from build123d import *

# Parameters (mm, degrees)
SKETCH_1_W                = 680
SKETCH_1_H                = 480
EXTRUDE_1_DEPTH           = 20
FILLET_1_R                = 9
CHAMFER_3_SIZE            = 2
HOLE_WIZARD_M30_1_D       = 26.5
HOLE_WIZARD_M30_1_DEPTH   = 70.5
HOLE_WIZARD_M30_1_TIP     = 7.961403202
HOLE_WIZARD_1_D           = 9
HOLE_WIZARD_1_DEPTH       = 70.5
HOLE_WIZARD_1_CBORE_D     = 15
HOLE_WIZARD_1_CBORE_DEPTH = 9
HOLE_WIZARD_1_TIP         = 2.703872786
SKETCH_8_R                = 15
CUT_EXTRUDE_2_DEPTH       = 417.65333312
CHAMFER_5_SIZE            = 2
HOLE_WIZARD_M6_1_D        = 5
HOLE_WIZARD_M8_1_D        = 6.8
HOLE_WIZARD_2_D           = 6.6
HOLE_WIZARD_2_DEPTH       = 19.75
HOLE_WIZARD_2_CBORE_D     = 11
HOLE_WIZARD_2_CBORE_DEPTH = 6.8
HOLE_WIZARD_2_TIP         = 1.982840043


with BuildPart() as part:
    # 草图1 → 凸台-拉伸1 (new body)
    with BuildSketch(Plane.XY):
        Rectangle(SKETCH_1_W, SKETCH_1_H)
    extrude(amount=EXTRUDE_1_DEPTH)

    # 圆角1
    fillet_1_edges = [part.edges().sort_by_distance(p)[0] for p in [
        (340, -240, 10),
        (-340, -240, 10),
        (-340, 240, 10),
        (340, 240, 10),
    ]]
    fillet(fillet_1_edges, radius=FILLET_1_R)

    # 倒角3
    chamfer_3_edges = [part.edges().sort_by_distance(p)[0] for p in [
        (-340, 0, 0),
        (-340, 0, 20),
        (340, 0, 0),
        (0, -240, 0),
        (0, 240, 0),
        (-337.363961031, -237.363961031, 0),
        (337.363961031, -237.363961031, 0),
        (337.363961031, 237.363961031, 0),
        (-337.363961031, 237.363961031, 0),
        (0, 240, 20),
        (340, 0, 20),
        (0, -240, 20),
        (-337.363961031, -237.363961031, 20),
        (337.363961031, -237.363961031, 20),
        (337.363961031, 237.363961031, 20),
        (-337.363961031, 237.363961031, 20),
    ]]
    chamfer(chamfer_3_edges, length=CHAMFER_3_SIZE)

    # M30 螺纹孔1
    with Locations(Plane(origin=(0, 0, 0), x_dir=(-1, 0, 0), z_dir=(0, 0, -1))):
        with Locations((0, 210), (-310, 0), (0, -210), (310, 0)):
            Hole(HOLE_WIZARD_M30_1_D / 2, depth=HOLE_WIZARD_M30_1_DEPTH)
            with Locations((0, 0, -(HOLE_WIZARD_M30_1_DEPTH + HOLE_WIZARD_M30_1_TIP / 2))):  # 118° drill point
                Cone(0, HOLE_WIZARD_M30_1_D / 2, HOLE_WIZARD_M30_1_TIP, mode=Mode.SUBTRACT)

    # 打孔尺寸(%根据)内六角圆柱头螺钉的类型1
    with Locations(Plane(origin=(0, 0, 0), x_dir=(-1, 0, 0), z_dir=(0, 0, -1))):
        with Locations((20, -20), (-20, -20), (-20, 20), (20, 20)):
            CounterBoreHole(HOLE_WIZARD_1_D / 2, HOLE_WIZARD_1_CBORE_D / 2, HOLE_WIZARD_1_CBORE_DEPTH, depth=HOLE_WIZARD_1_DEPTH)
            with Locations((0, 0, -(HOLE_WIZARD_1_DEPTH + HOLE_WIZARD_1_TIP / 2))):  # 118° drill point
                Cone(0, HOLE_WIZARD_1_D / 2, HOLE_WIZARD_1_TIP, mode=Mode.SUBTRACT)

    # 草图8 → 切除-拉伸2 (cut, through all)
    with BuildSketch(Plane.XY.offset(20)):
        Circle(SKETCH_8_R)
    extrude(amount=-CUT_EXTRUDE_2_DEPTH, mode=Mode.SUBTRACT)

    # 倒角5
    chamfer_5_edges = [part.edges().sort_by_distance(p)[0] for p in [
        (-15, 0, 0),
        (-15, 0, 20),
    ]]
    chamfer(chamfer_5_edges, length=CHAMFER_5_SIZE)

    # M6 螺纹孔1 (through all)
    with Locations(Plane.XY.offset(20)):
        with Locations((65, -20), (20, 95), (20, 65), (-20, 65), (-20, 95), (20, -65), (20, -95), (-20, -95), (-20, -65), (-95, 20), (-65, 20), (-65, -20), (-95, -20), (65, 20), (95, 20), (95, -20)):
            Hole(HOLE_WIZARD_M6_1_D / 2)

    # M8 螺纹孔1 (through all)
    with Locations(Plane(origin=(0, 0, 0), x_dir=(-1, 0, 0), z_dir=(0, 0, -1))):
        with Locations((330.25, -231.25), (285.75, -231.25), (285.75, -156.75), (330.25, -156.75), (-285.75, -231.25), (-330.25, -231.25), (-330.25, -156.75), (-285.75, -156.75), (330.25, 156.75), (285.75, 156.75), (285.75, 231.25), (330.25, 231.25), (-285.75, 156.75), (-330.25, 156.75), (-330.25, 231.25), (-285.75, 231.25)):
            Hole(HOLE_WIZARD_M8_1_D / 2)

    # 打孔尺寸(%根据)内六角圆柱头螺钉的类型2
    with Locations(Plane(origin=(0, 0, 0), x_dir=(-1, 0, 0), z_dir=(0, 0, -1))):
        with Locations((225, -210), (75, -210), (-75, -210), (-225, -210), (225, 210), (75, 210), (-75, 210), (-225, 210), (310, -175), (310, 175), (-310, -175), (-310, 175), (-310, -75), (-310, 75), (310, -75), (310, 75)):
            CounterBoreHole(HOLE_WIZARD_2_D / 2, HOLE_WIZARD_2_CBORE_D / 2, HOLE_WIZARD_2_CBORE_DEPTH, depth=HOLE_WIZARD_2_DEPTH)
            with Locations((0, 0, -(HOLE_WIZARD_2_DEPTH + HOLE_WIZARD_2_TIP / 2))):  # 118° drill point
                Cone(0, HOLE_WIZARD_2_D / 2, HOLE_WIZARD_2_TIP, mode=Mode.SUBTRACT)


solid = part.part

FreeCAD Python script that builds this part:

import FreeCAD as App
import Part
import Sketcher

V = App.Vector
Q = App.Units.Quantity


def edges_at(feature, points):
    """Names of the edges that pass closest to the given points."""
    edges = feature.Shape.Edges
    near = lambda p: min(range(len(edges)), key=lambda i: edges[i].distToShape(Part.Vertex(*p))[0])
    return sorted({f"Edge{near(p) + 1}" for p in points})

doc = App.newDocument("Part")
params = doc.addObject("Spreadsheet::Sheet", "Params")
for row, (alias, value) in enumerate([
    ("sketch1_width", "680 mm"),
    ("sketch1_height", "480 mm"),
    ("pad1_length", "20 mm"),
    ("fillet_radius", "9 mm"),
    ("chamfer_size", "2 mm"),
    ("sketch2_diameter", "26.5 mm"),
    ("hole_diameter", "26.5 mm"),
    ("hole_depth", "70.5 mm"),
    ("sketch3_diameter", "9 mm"),
    ("hole2_diameter", "9 mm"),
    ("hole2_depth", "70.5 mm"),
    ("hole2_cbore_diameter", "15 mm"),
    ("hole2_cbore_depth", "9 mm"),
    ("sketch4_diameter", "30 mm"),
    ("chamfer2_size", "2 mm"),
    ("sketch5_diameter", "5 mm"),
    ("hole3_diameter", "5 mm"),
    ("sketch6_diameter", "6.8 mm"),
    ("hole4_diameter", "6.8 mm"),
    ("sketch7_diameter", "6.6 mm"),
    ("hole5_diameter", "6.6 mm"),
    ("hole5_depth", "19.75 mm"),
    ("hole5_cbore_diameter", "11 mm"),
    ("hole5_cbore_depth", "6.8 mm"),
], start=1):
    params.set(f"A{row}", alias)
    params.set(f"B{row}", "=" + value)
    params.setAlias(f"B{row}", alias)

body = doc.addObject("PartDesign::Body", "Body")

sketch1 = body.newObject("Sketcher::SketchObject", "Sketch")
sketch1.AttachmentSupport = (doc.getObject("XY_Plane"), [""])
sketch1.MapMode = "FlatFace"
sketch1.addGeometry([
    Part.LineSegment(V(-340, 240, 0), V(-340, -240, 0)),
    Part.LineSegment(V(-340, -240, 0), V(340, -240, 0)),
    Part.LineSegment(V(340, -240, 0), V(340, 240, 0)),
    Part.LineSegment(V(340, 240, 0), V(-340, 240, 0)),
], False)
sketch1.addConstraint([
    Sketcher.Constraint("Coincident", 0, 2, 1, 1),
    Sketcher.Constraint("Coincident", 1, 2, 2, 1),
    Sketcher.Constraint("Coincident", 2, 2, 3, 1),
    Sketcher.Constraint("Coincident", 3, 2, 0, 1),
    Sketcher.Constraint("Vertical", 0),
    Sketcher.Constraint("Horizontal", 1),
    Sketcher.Constraint("Vertical", 2),
    Sketcher.Constraint("Horizontal", 3),
    Sketcher.Constraint("Symmetric", 0, 2, 2, 2, -1, 1),
    Sketcher.Constraint("DistanceX", 1, 1, 1, 2, Q("680 mm")),
    Sketcher.Constraint("DistanceY", 0, 2, 0, 1, Q("480 mm")),
])
sketch1.setExpression("Constraints[9]", "Params.sketch1_width")
sketch1.setExpression("Constraints[10]", "Params.sketch1_height")
pad1 = body.newObject("PartDesign::Pad", "Pad")
pad1.Profile = sketch1
pad1.setExpression("Length", "Params.pad1_length")
doc.recompute()

fillet = body.newObject("PartDesign::Fillet", "Fillet")
fillet.Base = (pad1, edges_at(pad1, [
    (340, -240, 10),
    (-340, -240, 10),
    (-340, 240, 10),
    (340, 240, 10),
]))
fillet.setExpression("Radius", "Params.fillet_radius")
doc.recompute()

chamfer = body.newObject("PartDesign::Chamfer", "Chamfer")
chamfer.Base = (fillet, edges_at(fillet, [
    (-340, 0, 0),
    (-340, 0, 20),
    (340, 0, 0),
    (0, -240, 0),
    (0, 240, 0),
    (-337.364, -237.364, 0),
    (337.364, -237.364, 0),
    (337.364, 237.364, 0),
    (-337.364, 237.364, 0),
    (0, 240, 20),
    (340, 0, 20),
    (0, -240, 20),
    (-337.364, -237.364, 20),
    (337.364, -237.364, 20),
    (337.364, 237.364, 20),
    (-337.364, 237.364, 20),
]))
chamfer.setExpression("Size", "Params.chamfer_size")

sketch2 = body.newObject("Sketcher::SketchObject", "Sketch001")
sketch2.AttachmentSupport = (doc.getObject("XY_Plane"), [""])
sketch2.MapMode = "FlatFace"
sketch2.addGeometry([
    Part.Circle(V(0, 210, 0), V(0, 0, 1), 13),
    Part.Circle(V(310, 0, 0), V(0, 0, 1), 13),
    Part.Circle(V(0, -210, 0), V(0, 0, 1), 13),
    Part.Circle(V(-310, 0, 0), V(0, 0, 1), 13),
], False)
sketch2.addConstraint([
    Sketcher.Constraint("Equal", 0, 1),
    Sketcher.Constraint("Equal", 1, 2),
    Sketcher.Constraint("Equal", 2, 3),
    Sketcher.Constraint("Symmetric", 0, 3, 2, 3, -1, 1),
    Sketcher.Constraint("Symmetric", 1, 3, 3, 3, -1, 1),
    Sketcher.Constraint("PointOnObject", 0, 3, -2),
    Sketcher.Constraint("PointOnObject", 1, 3, -1),
    Sketcher.Constraint("Diameter", 0, Q("26.5 mm")),
    Sketcher.Constraint("DistanceY", -1, 1, 0, 3, Q("210 mm")),
    Sketcher.Constraint("DistanceX", -1, 1, 1, 3, Q("310 mm")),
])
sketch2.setExpression("Constraints[7]", "Params.sketch2_diameter")
doc.recompute()
hole = body.newObject("PartDesign::Hole", "Hole")
hole.Profile = sketch2
hole.ThreadType = "None"
hole.setExpression("Diameter", "Params.hole_diameter")
hole.DepthType = "Dimension"
hole.setExpression("Depth", "Params.hole_depth")
hole.DrillPoint = "Angled"
hole.DrillPointAngle = 118
hole.Reversed = True

sketch3 = body.newObject("Sketcher::SketchObject", "Sketch002")
sketch3.AttachmentSupport = (doc.getObject("XY_Plane"), [""])
sketch3.MapMode = "FlatFace"
sketch3.addGeometry([
    Part.Circle(V(-20, -20, 0), V(0, 0, 1), 4.5),
    Part.Circle(V(20, -20, 0), V(0, 0, 1), 4.5),
    Part.Circle(V(20, 20, 0), V(0, 0, 1), 4.5),
    Part.Circle(V(-20, 20, 0), V(0, 0, 1), 4.5),
], False)
sketch3.addConstraint([
    Sketcher.Constraint("Equal", 0, 1),
    Sketcher.Constraint("Equal", 1, 2),
    Sketcher.Constraint("Equal", 2, 3),
    Sketcher.Constraint("Symmetric", 0, 3, 2, 3, -1, 1),
    Sketcher.Constraint("Symmetric", 1, 3, 3, 3, -1, 1),
    Sketcher.Constraint("Symmetric", 0, 3, 1, 3, -2),
    Sketcher.Constraint("Diameter", 0, Q("9 mm")),
    Sketcher.Constraint("DistanceX", 0, 3, -1, 1, Q("20 mm")),
    Sketcher.Constraint("DistanceY", 0, 3, -1, 1, Q("20 mm")),
])
sketch3.setExpression("Constraints[6]", "Params.sketch3_diameter")
doc.recompute()
hole2 = body.newObject("PartDesign::Hole", "Hole001")
hole2.Profile = sketch3
hole2.ThreadType = "None"
hole2.setExpression("Diameter", "Params.hole2_diameter")
hole2.DepthType = "Dimension"
hole2.setExpression("Depth", "Params.hole2_depth")
hole2.DrillPoint = "Angled"
hole2.DrillPointAngle = 118
hole2.HoleCutType = "Counterbore"
hole2.setExpression("HoleCutDiameter", "Params.hole2_cbore_diameter")
hole2.setExpression("HoleCutDepth", "Params.hole2_cbore_depth")
hole2.Reversed = True

sketch4 = body.newObject("Sketcher::SketchObject", "Sketch003")
sketch4.AttachmentSupport = (doc.getObject("XY_Plane"), [""])
sketch4.MapMode = "FlatFace"
sketch4.AttachmentOffset = App.Placement(V(0, 0, 20), App.Rotation())
sketch4.addGeometry(Part.Circle(V(0, 0, 0), V(0, 0, 1), 15), False)
sketch4.addConstraint([
    Sketcher.Constraint("Coincident", 0, 3, -1, 1),
    Sketcher.Constraint("Diameter", 0, Q("30 mm")),
])
sketch4.setExpression("Constraints[1]", "Params.sketch4_diameter")
pocket1 = body.newObject("PartDesign::Pocket", "Pocket")
pocket1.Profile = sketch4
pocket1.Type = "ThroughAll"
doc.recompute()

chamfer2 = body.newObject("PartDesign::Chamfer", "Chamfer001")
chamfer2.Base = (pocket1, edges_at(pocket1, [(-15, 0, 0), (-15, 0, 20)]))
chamfer2.setExpression("Size", "Params.chamfer2_size")

sketch5 = body.newObject("Sketcher::SketchObject", "Sketch004")
sketch5.AttachmentSupport = (doc.getObject("XY_Plane"), [""])
sketch5.MapMode = "FlatFace"
sketch5.AttachmentOffset = App.Placement(V(0, 0, 20), App.Rotation())
sketch5.addGeometry([
    Part.Circle(V(65, -20, 0), V(0, 0, 1), 2.5),
    Part.Circle(V(20, 95, 0), V(0, 0, 1), 2.5),
    Part.Circle(V(20, 65, 0), V(0, 0, 1), 2.5),
    Part.Circle(V(-20, 65, 0), V(0, 0, 1), 2.5),
    Part.Circle(V(-20, 95, 0), V(0, 0, 1), 2.5),
    Part.Circle(V(20, -65, 0), V(0, 0, 1), 2.5),
    Part.Circle(V(20, -95, 0), V(0, 0, 1), 2.5),
    Part.Circle(V(-20, -95, 0), V(0, 0, 1), 2.5),
    Part.Circle(V(-20, -65, 0), V(0, 0, 1), 2.5),
    Part.Circle(V(-95, 20, 0), V(0, 0, 1), 2.5),
    Part.Circle(V(-65, 20, 0), V(0, 0, 1), 2.5),
    Part.Circle(V(-65, -20, 0), V(0, 0, 1), 2.5),
    Part.Circle(V(-95, -20, 0), V(0, 0, 1), 2.5),
    Part.Circle(V(65, 20, 0), V(0, 0, 1), 2.5),
    Part.Circle(V(95, 20, 0), V(0, 0, 1), 2.5),
    Part.Circle(V(95, -20, 0), V(0, 0, 1), 2.5),
], False)
sketch5.addConstraint([
    Sketcher.Constraint("Equal", 0, 1),
    Sketcher.Constraint("Equal", 1, 2),
    Sketcher.Constraint("Equal", 2, 3),
    Sketcher.Constraint("Equal", 3, 4),
    Sketcher.Constraint("Equal", 4, 5),
    Sketcher.Constraint("Equal", 5, 6),
    Sketcher.Constraint("Equal", 6, 7),
    Sketcher.Constraint("Equal", 7, 8),
    Sketcher.Constraint("Equal", 8, 9),
    Sketcher.Constraint("Equal", 9, 10),
    Sketcher.Constraint("Equal", 10, 11),
    Sketcher.Constraint("Equal", 11, 12),
    Sketcher.Constraint("Equal", 12, 13),
    Sketcher.Constraint("Equal", 13, 14),
    Sketcher.Constraint("Equal", 14, 15),
    Sketcher.Constraint("Symmetric", 3, 3, 5, 3, -1, 1),
    Sketcher.Constraint("Symmetric", 4, 3, 6, 3, -1, 1),
    Sketcher.Constraint("Symmetric", 1, 3, 7, 3, -1, 1),
    Sketcher.Constraint("Symmetric", 2, 3, 8, 3, -1, 1),
    Sketcher.Constraint("Symmetric", 0, 3, 10, 3, -1, 1),
    Sketcher.Constraint("Symmetric", 11, 3, 13, 3, -1, 1),
    Sketcher.Constraint("Symmetric", 12, 3, 14, 3, -1, 1),
    Sketcher.Constraint("Symmetric", 9, 3, 15, 3, -1, 1),
    Sketcher.Constraint("Symmetric", 2, 3, 3, 3, -2),
    Sketcher.Constraint("Symmetric", 1, 3, 4, 3, -2),
    Sketcher.Constraint("Symmetric", 0, 3, 11, 3, -2),
    Sketcher.Constraint("Symmetric", 9, 3, 14, 3, -2),
    Sketcher.Constraint("Horizontal", 9, 3, 10, 3),
    Sketcher.Constraint("Vertical", 1, 3, 2, 3),
    Sketcher.Constraint("Diameter", 0, Q("5 mm")),
    Sketcher.Constraint("DistanceX", -1, 1, 0, 3, Q("65 mm")),
    Sketcher.Constraint("DistanceY", 0, 3, -1, 1, Q("20 mm")),
    Sketcher.Constraint("DistanceX", -1, 1, 1, 3, Q("20 mm")),
    Sketcher.Constraint("DistanceY", -1, 1, 1, 3, Q("95 mm")),
    Sketcher.Constraint("DistanceY", -1, 1, 2, 3, Q("65 mm")),
    Sketcher.Constraint("DistanceX", 9, 3, -1, 1, Q("95 mm")),
])
sketch5.setExpression("Constraints[29]", "Params.sketch5_diameter")
doc.recompute()
hole3 = body.newObject("PartDesign::Hole", "Hole002")
hole3.Profile = sketch5
hole3.ThreadType = "None"
hole3.setExpression("Diameter", "Params.hole3_diameter")
hole3.DepthType = "ThroughAll"

sketch6 = body.newObject("Sketcher::SketchObject", "Sketch005")
sketch6.AttachmentSupport = (doc.getObject("XY_Plane"), [""])
sketch6.MapMode = "FlatFace"
sketch6.addGeometry([
    Part.Circle(V(-330.2, -231.2, 0), V(0, 0, 1), 3.4),
    Part.Circle(V(-285.8, -231.2, 0), V(0, 0, 1), 3.4),
    Part.Circle(V(-285.8, -156.8, 0), V(0, 0, 1), 3.4),
    Part.Circle(V(-330.2, -156.8, 0), V(0, 0, 1), 3.4),
    Part.Circle(V(285.8, -231.2, 0), V(0, 0, 1), 3.4),
    Part.Circle(V(330.2, -231.2, 0), V(0, 0, 1), 3.4),
    Part.Circle(V(330.2, -156.8, 0), V(0, 0, 1), 3.4),
    Part.Circle(V(285.8, -156.8, 0), V(0, 0, 1), 3.4),
    Part.Circle(V(-330.2, 156.8, 0), V(0, 0, 1), 3.4),
    Part.Circle(V(-285.8, 156.8, 0), V(0, 0, 1), 3.4),
    Part.Circle(V(-285.8, 231.2, 0), V(0, 0, 1), 3.4),
    Part.Circle(V(-330.2, 231.2, 0), V(0, 0, 1), 3.4),
    Part.Circle(V(285.8, 156.8, 0), V(0, 0, 1), 3.4),
    Part.Circle(V(330.2, 156.8, 0), V(0, 0, 1), 3.4),
    Part.Circle(V(330.2, 231.2, 0), V(0, 0, 1), 3.4),
    Part.Circle(V(285.8, 231.2, 0), V(0, 0, 1), 3.4),
], False)
sketch6.addConstraint([
    Sketcher.Constraint("Equal", 0, 1),
    Sketcher.Constraint("Equal", 1, 2),
    Sketcher.Constraint("Equal", 2, 3),
    Sketcher.Constraint("Equal", 3, 4),
    Sketcher.Constraint("Equal", 4, 5),
    Sketcher.Constraint("Equal", 5, 6),
    Sketcher.Constraint("Equal", 6, 7),
    Sketcher.Constraint("Equal", 7, 8),
    Sketcher.Constraint("Equal", 8, 9),
    Sketcher.Constraint("Equal", 9, 10),
    Sketcher.Constraint("Equal", 10, 11),
    Sketcher.Constraint("Equal", 11, 12),
    Sketcher.Constraint("Equal", 12, 13),
    Sketcher.Constraint("Equal", 13, 14),
    Sketcher.Constraint("Equal", 14, 15),
    Sketcher.Constraint("Symmetric", 6, 3, 8, 3, -1, 1),
    Sketcher.Constraint("Symmetric", 7, 3, 9, 3, -1, 1),
    Sketcher.Constraint("Symmetric", 4, 3, 10, 3, -1, 1),
    Sketcher.Constraint("Symmetric", 5, 3, 11, 3, -1, 1),
    Sketcher.Constraint("Symmetric", 2, 3, 12, 3, -1, 1),
    Sketcher.Constraint("Symmetric", 3, 3, 13, 3, -1, 1),
    Sketcher.Constraint("Symmetric", 0, 3, 14, 3, -1, 1),
    Sketcher.Constraint("Symmetric", 1, 3, 15, 3, -1, 1),
    Sketcher.Constraint("Symmetric", 1, 3, 4, 3, -2),
    Sketcher.Constraint("Symmetric", 0, 3, 5, 3, -2),
    Sketcher.Constraint("Symmetric", 3, 3, 6, 3, -2),
    Sketcher.Constraint("Symmetric", 2, 3, 7, 3, -2),
    Sketcher.Constraint("Horizontal", 0, 3, 1, 3),
    Sketcher.Constraint("Horizontal", 2, 3, 3, 3),
    Sketcher.Constraint("Vertical", 1, 3, 2, 3),
    Sketcher.Constraint("Vertical", 0, 3, 3, 3),
    Sketcher.Constraint("Diameter", 0, Q("6.8 mm")),
    Sketcher.Constraint("DistanceX", 0, 3, 4, 3, Q("616 mm")),
    Sketcher.Constraint("DistanceY", 0, 3, 8, 3, Q("388 mm")),
    Sketcher.Constraint("DistanceX", 0, 3, 1, 3, Q("44.5 mm")),
    Sketcher.Constraint("DistanceY", 1, 3, 2, 3, Q("74.5 mm")),
])
sketch6.setExpression("Constraints[31]", "Params.sketch6_diameter")
doc.recompute()
hole4 = body.newObject("PartDesign::Hole", "Hole003")
hole4.Profile = sketch6
hole4.ThreadType = "None"
hole4.setExpression("Diameter", "Params.hole4_diameter")
hole4.DepthType = "ThroughAll"
hole4.Reversed = True

sketch7 = body.newObject("Sketcher::SketchObject", "Sketch006")
sketch7.AttachmentSupport = (doc.getObject("XY_Plane"), [""])
sketch7.MapMode = "FlatFace"
sketch7.addGeometry([
    Part.Circle(V(-225, -210, 0), V(0, 0, 1), 3.3),
    Part.Circle(V(-75, -210, 0), V(0, 0, 1), 3.3),
    Part.Circle(V(75, -210, 0), V(0, 0, 1), 3.3),
    Part.Circle(V(225, -210, 0), V(0, 0, 1), 3.3),
    Part.Circle(V(-225, 210, 0), V(0, 0, 1), 3.3),
    Part.Circle(V(-75, 210, 0), V(0, 0, 1), 3.3),
    Part.Circle(V(75, 210, 0), V(0, 0, 1), 3.3),
    Part.Circle(V(225, 210, 0), V(0, 0, 1), 3.3),
    Part.Circle(V(-310, -175, 0), V(0, 0, 1), 3.3),
    Part.Circle(V(-310, 175, 0), V(0, 0, 1), 3.3),
    Part.Circle(V(310, -175, 0), V(0, 0, 1), 3.3),
    Part.Circle(V(310, 175, 0), V(0, 0, 1), 3.3),
    Part.Circle(V(310, -75, 0), V(0, 0, 1), 3.3),
    Part.Circle(V(310, 75, 0), V(0, 0, 1), 3.3),
    Part.Circle(V(-310, -75, 0), V(0, 0, 1), 3.3),
    Part.Circle(V(-310, 75, 0), V(0, 0, 1), 3.3),
], False)
sketch7.addConstraint([
    Sketcher.Constraint("Equal", 0, 1),
    Sketcher.Constraint("Equal", 1, 2),
    Sketcher.Constraint("Equal", 2, 3),
    Sketcher.Constraint("Equal", 3, 4),
    Sketcher.Constraint("Equal", 4, 5),
    Sketcher.Constraint("Equal", 5, 6),
    Sketcher.Constraint("Equal", 6, 7),
    Sketcher.Constraint("Equal", 7, 8),
    Sketcher.Constraint("Equal", 8, 9),
    Sketcher.Constraint("Equal", 9, 10),
    Sketcher.Constraint("Equal", 10, 11),
    Sketcher.Constraint("Equal", 11, 12),
    Sketcher.Constraint("Equal", 12, 13),
    Sketcher.Constraint("Equal", 13, 14),
    Sketcher.Constraint("Equal", 14, 15),
    Sketcher.Constraint("Symmetric", 3, 3, 4, 3, -1, 1),
    Sketcher.Constraint("Symmetric", 2, 3, 5, 3, -1, 1),
    Sketcher.Constraint("Symmetric", 1, 3, 6, 3, -1, 1),
    Sketcher.Constraint("Symmetric", 0, 3, 7, 3, -1, 1),
    Sketcher.Constraint("Symmetric", 9, 3, 10, 3, -1, 1),
    Sketcher.Constraint("Symmetric", 8, 3, 11, 3, -1, 1),
    Sketcher.Constraint("Symmetric", 13, 3, 14, 3, -1, 1),
    Sketcher.Constraint("Symmetric", 12, 3, 15, 3, -1, 1),
    Sketcher.Constraint("Symmetric", 1, 3, 2, 3, -2),
    Sketcher.Constraint("Symmetric", 0, 3, 3, 3, -2),
    Sketcher.Constraint("Symmetric", 8, 3, 10, 3, -2),
    Sketcher.Constraint("Symmetric", 12, 3, 14, 3, -2),
    Sketcher.Constraint("Horizontal", 0, 3, 1, 3),
    Sketcher.Constraint("Vertical", 11, 3, 12, 3),
    Sketcher.Constraint("Diameter", 0, Q("6.6 mm")),
    Sketcher.Constraint("DistanceX", 0, 3, -1, 1, Q("225 mm")),
    Sketcher.Constraint("DistanceY", 0, 3, -1, 1, Q("210 mm")),
    Sketcher.Constraint("DistanceX", 1, 3, -1, 1, Q("75 mm")),
    Sketcher.Constraint("DistanceX", 8, 3, -1, 1, Q("310 mm")),
    Sketcher.Constraint("DistanceY", 8, 3, -1, 1, Q("175 mm")),
    Sketcher.Constraint("DistanceY", 12, 3, -1, 1, Q("75 mm")),
])
sketch7.setExpression("Constraints[29]", "Params.sketch7_diameter")
doc.recompute()
hole5 = body.newObject("PartDesign::Hole", "Hole004")
hole5.Profile = sketch7
hole5.ThreadType = "None"
hole5.setExpression("Diameter", "Params.hole5_diameter")
hole5.DepthType = "Dimension"
hole5.setExpression("Depth", "Params.hole5_depth")
hole5.DrillPoint = "Angled"
hole5.DrillPointAngle = 118
hole5.HoleCutType = "Counterbore"
hole5.setExpression("HoleCutDiameter", "Params.hole5_cbore_diameter")
hole5.setExpression("HoleCutDepth", "Params.hole5_cbore_depth")
hole5.Reversed = True

doc.recompute()
